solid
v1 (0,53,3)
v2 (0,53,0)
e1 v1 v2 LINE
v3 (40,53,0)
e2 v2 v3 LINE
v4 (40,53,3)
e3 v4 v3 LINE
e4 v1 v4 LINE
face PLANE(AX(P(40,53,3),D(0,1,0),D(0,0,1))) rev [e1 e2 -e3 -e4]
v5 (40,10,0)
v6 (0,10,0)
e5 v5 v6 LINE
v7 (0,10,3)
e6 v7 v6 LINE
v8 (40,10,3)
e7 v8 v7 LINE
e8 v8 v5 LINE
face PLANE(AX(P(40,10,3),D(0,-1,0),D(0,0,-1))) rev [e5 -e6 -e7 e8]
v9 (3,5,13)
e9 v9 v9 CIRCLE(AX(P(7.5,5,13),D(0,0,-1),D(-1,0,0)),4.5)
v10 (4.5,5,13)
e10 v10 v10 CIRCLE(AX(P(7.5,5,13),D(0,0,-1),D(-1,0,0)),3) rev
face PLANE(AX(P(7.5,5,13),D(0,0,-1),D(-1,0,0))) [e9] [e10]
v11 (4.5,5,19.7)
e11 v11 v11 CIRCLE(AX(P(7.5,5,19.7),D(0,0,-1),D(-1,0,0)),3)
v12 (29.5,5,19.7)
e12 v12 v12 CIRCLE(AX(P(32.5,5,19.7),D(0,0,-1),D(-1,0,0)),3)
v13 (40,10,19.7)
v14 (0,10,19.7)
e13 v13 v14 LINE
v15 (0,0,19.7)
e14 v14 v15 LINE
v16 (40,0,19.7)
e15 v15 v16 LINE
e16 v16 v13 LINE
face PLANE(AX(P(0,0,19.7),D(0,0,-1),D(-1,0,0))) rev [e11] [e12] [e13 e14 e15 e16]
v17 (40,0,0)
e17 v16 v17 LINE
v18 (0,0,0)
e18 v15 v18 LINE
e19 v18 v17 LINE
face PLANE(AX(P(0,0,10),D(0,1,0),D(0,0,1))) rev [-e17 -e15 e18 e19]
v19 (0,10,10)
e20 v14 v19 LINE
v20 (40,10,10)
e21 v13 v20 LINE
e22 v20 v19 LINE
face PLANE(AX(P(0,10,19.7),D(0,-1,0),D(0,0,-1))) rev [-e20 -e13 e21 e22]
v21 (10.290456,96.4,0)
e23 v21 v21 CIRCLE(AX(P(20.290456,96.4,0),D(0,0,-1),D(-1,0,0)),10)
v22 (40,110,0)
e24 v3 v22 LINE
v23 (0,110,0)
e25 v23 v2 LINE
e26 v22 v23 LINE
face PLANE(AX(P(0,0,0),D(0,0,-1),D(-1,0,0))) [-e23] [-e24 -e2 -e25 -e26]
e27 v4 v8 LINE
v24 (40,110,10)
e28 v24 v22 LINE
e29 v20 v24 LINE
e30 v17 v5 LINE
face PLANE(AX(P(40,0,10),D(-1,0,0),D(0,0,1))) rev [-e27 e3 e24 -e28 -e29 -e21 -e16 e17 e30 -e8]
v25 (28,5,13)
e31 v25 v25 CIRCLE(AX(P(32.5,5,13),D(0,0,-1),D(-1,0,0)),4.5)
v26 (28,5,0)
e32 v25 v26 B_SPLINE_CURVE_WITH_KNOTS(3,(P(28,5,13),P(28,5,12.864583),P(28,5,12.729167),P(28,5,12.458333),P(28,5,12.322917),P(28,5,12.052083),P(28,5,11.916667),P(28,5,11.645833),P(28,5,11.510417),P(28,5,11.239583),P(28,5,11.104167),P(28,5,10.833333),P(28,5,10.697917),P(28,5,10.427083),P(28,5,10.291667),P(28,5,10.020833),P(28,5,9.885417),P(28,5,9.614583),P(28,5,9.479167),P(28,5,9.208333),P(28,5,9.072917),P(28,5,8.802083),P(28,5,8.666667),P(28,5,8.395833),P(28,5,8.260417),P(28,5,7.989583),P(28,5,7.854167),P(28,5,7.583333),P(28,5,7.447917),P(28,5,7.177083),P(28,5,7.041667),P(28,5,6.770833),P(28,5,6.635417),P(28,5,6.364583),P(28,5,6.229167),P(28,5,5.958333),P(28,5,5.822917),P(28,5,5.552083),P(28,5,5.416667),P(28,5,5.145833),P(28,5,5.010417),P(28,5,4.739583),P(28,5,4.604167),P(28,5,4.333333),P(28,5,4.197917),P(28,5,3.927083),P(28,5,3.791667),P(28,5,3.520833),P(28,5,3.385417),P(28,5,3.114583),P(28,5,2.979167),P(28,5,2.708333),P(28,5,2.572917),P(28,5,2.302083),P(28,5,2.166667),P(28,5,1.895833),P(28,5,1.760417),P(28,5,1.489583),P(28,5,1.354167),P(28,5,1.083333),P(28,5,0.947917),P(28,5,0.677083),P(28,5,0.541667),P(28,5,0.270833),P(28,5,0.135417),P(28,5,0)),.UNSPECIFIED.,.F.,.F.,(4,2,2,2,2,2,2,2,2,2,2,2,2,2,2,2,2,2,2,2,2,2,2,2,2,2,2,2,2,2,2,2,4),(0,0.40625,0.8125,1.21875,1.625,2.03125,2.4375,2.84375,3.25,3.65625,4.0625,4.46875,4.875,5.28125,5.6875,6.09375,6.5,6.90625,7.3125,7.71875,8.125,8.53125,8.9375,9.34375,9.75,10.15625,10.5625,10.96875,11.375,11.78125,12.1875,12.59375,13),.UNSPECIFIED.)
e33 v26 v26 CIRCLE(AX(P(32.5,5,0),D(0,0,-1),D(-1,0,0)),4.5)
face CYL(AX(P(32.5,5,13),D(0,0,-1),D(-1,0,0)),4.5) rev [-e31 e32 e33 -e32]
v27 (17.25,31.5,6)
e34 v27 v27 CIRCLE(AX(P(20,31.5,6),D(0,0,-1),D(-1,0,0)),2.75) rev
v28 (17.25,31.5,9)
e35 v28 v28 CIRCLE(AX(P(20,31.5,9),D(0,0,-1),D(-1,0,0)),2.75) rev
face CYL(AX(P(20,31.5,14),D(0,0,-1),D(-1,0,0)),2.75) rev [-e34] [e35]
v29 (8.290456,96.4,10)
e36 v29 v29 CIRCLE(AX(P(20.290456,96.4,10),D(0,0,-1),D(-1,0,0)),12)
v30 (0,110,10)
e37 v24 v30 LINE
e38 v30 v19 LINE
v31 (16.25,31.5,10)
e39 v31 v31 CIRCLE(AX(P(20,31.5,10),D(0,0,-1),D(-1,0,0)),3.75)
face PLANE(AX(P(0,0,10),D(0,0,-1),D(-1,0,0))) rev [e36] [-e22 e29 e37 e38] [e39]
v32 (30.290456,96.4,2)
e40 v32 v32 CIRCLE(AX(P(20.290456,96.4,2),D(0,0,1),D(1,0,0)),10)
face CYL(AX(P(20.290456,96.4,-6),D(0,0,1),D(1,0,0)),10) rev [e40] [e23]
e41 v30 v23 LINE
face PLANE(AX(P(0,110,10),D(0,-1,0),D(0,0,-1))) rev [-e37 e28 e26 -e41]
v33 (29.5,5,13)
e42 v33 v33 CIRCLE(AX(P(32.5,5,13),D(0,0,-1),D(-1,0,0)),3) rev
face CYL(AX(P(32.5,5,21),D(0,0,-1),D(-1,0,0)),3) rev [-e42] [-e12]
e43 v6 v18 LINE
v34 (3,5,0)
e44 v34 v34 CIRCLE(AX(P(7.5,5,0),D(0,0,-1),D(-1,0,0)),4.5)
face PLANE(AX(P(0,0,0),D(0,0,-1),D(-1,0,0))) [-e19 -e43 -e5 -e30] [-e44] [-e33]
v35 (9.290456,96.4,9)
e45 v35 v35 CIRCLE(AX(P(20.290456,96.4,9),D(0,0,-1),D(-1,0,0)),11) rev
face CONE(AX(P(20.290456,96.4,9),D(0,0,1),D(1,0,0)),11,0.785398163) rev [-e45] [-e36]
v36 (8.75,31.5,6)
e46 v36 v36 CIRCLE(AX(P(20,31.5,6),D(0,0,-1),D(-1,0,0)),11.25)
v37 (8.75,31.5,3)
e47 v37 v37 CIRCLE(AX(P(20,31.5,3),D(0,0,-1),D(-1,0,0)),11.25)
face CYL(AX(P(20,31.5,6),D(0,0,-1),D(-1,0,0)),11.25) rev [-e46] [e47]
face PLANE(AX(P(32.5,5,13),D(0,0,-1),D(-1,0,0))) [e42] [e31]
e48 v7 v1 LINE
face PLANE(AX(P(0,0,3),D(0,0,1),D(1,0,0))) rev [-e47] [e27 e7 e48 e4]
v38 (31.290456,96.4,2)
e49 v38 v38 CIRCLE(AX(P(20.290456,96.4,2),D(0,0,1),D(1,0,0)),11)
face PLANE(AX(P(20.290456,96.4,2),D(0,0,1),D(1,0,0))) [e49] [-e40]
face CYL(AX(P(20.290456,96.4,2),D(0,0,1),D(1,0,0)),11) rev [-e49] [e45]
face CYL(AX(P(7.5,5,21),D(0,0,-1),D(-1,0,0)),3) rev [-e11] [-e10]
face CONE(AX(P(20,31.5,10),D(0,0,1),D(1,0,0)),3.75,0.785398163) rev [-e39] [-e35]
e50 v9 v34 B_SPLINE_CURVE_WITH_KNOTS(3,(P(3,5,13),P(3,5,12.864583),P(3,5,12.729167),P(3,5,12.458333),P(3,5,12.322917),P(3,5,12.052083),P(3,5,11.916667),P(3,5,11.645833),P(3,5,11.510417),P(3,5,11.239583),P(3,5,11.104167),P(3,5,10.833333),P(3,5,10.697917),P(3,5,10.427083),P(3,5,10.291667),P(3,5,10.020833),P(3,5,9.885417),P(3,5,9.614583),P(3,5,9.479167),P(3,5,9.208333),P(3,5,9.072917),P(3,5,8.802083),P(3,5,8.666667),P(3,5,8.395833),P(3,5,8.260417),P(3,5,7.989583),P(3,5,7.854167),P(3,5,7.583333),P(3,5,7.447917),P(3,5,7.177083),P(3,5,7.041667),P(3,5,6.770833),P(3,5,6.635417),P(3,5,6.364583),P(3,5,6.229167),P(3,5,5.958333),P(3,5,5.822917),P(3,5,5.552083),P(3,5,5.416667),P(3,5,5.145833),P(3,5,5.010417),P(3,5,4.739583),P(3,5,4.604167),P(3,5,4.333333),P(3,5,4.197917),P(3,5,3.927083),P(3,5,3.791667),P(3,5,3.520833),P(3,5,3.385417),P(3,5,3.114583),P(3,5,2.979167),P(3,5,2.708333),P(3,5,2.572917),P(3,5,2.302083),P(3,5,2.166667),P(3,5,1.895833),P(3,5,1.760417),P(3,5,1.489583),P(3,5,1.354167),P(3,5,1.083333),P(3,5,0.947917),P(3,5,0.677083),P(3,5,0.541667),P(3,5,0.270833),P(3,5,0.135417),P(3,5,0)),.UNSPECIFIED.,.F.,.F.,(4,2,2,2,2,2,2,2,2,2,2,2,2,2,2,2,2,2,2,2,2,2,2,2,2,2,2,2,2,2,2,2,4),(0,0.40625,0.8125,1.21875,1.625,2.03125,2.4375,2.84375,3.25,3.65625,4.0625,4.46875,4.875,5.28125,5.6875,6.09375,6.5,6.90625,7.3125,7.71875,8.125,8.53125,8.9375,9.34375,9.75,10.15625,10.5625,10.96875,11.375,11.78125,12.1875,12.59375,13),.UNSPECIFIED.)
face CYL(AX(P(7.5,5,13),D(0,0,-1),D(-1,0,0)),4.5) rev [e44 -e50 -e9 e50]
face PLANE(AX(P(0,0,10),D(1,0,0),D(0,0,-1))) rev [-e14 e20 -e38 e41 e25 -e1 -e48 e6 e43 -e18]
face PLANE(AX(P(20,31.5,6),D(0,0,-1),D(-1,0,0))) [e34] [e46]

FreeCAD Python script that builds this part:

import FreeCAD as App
import Part
import Sketcher
from FreeCAD import Vector
Q = App.Units.Quantity


def edges_at(feature, points):
    """Names of the edges that pass closest to the given points."""
    edges = feature.Shape.Edges
    near = lambda p: min(range(len(edges)), key=lambda i: edges[i].distToShape(Part.Vertex(*p))[0])
    return sorted({f"Edge{near(p) + 1}" for p in points})

doc = App.newDocument("Part")
body = doc.addObject("PartDesign::Body", "Body")

# Sketch on XY plane
sketch1 = body.newObject("Sketcher::SketchObject", "Sketch")
sketch1.AttachmentSupport = (doc.getObject("XY_Plane"), [""])
sketch1.MapMode = "FlatFace"
sketch1.addGeometry([
    Part.LineSegment(Vector(0, 110, 0), Vector(0, 0, 0)),
    Part.LineSegment(Vector(0, 0, 0), Vector(40, 0, 0)),
    Part.LineSegment(Vector(40, 0, 0), Vector(40, 110, 0)),
    Part.LineSegment(Vector(40, 110, 0), Vector(0, 110, 0)),
], False)
sketch1.addConstraint([
    Sketcher.Constraint("Coincident", 0, 2, 1, 1),
    Sketcher.Constraint("Coincident", 1, 2, 2, 1),
    Sketcher.Constraint("Coincident", 2, 2, 3, 1),
    Sketcher.Constraint("Coincident", 3, 2, 0, 1),
    Sketcher.Constraint("Vertical", 0),
    Sketcher.Constraint("Horizontal", 1),
    Sketcher.Constraint("Vertical", 2),
    Sketcher.Constraint("Horizontal", 3),
    Sketcher.Constraint("Coincident", 0, 2, -1, 1),
    Sketcher.Constraint("DistanceX", 1, 1, 1, 2, Q("40 mm")),
    Sketcher.Constraint("DistanceY", 0, 2, 0, 1, Q("110 mm")),
])
pad1 = body.newObject("PartDesign::Pad", "Pad")
pad1.Profile = sketch1
pad1.Length = 10

# Sketch on XY plane
sketch2 = body.newObject("Sketcher::SketchObject", "Sketch001")
sketch2.AttachmentSupport = (doc.getObject("XY_Plane"), [""])
sketch2.MapMode = "FlatFace"
sketch2.addGeometry([
    Part.LineSegment(Vector(40, 53, 0), Vector(40, 10, 0)),
    Part.LineSegment(Vector(40, 10, 0), Vector(0, 10, 0)),
    Part.LineSegment(Vector(0, 10, 0), Vector(0, 53, 0)),
    Part.LineSegment(Vector(0, 53, 0), Vector(40, 53, 0)),
], False)
sketch2.addConstraint([
    Sketcher.Constraint("Coincident", 0, 2, 1, 1),
    Sketcher.Constraint("Coincident", 1, 2, 2, 1),
    Sketcher.Constraint("Coincident", 2, 2, 3, 1),
    Sketcher.Constraint("Coincident", 3, 2, 0, 1),
    Sketcher.Constraint("Vertical", 0),
    Sketcher.Constraint("Horizontal", 1),
    Sketcher.Constraint("Vertical", 2),
    Sketcher.Constraint("Horizontal", 3),
    Sketcher.Constraint("PointOnObject", 1, 2, -2),
    Sketcher.Constraint("DistanceX", 1, 2, 1, 1, Q("40 mm")),
    Sketcher.Constraint("DistanceY", 0, 2, 0, 1, Q("43 mm")),
    Sketcher.Constraint("DistanceY", -1, 1, 0, 2, Q("10 mm")),
])
pocket1 = body.newObject("PartDesign::Pocket", "Pocket")
pocket1.Profile = sketch2
pocket1.Length = 3
pocket1.Reversed = True

# Sketch on XY plane
sketch3 = body.newObject("Sketcher::SketchObject", "Sketch002")
sketch3.AttachmentSupport = (doc.getObject("XY_Plane"), [""])
sketch3.MapMode = "FlatFace"
sketch3.AttachmentOffset = App.Placement(Vector(0, 0, 3), App.Rotation())
sketch3.addGeometry(Part.Circle(Vector(20, 31.5, 0), Vector(0, 0, 1), 2.8), False)
sketch3.addConstraint([
    Sketcher.Constraint("Diameter", 0, Q("5.5 mm")),
    Sketcher.Constraint("DistanceX", -1, 1, 0, 3, Q("20 mm")),
    Sketcher.Constraint("DistanceY", -1, 1, 0, 3, Q("31.5 mm")),
])
pocket2 = body.newObject("PartDesign::Pocket", "Pocket001")
pocket2.Profile = sketch3
pocket2.Length = 11
pocket2.Reversed = True

# Sketch on XY plane
sketch4 = body.newObject("Sketcher::SketchObject", "Sketch003")
sketch4.AttachmentSupport = (doc.getObject("XY_Plane"), [""])
sketch4.MapMode = "FlatFace"
sketch4.AttachmentOffset = App.Placement(Vector(0, 0, 10), App.Rotation())
sketch4.addGeometry(Part.Circle(Vector(20, 96, 0), Vector(0, 0, 1), 11), False)
sketch4.addConstraint([
    Sketcher.Constraint("Diameter", 0, Q("22 mm")),
    Sketcher.Constraint("DistanceY", -1, 1, 0, 3, Q("96.4 mm")),
    Sketcher.Constraint("DistanceX", -1, 1, 0, 3, Q("20.290456 mm")),
])
pocket3 = body.newObject("PartDesign::Pocket", "Pocket002")
pocket3.Profile = sketch4
pocket3.Length = 8

# Sketch on XY plane
sketch5 = body.newObject("Sketcher::SketchObject", "Sketch004")
sketch5.AttachmentSupport = (doc.getObject("XY_Plane"), [""])
sketch5.MapMode = "FlatFace"
sketch5.AttachmentOffset = App.Placement(Vector(0, 0, 2), App.Rotation())
sketch5.addGeometry(Part.Circle(Vector(20, 96, 0), Vector(0, 0, 1), 10), False)
sketch5.addConstraint([
    Sketcher.Constraint("Diameter", 0, Q("20 mm")),
    Sketcher.Constraint("DistanceY", -1, 1, 0, 3, Q("96.4 mm")),
    Sketcher.Constraint("DistanceX", -1, 1, 0, 3, Q("20.290456 mm")),
])
pocket4 = body.newObject("PartDesign::Pocket", "Pocket003")
pocket4.Profile = sketch5
pocket4.Length = 8
doc.recompute()

chamfer = body.newObject("PartDesign::Chamfer", "Chamfer")
chamfer.Base = (pocket4, edges_at(pocket4, [(22.75, 31.5, 10), (9.29, 96.4, 10)]))
chamfer.Size = 1

# Sketch on XY plane
sketch6 = body.newObject("Sketcher::SketchObject", "Sketch005")
sketch6.AttachmentSupport = (doc.getObject("XY_Plane"), [""])
sketch6.MapMode = "FlatFace"
sketch6.AttachmentOffset = App.Placement(Vector(0, 0, 10), App.Rotation())
sketch6.addGeometry([
    Part.LineSegment(Vector(0, 10, 0), Vector(0, 0, 0)),
    Part.LineSegment(Vector(0, 0, 0), Vector(40, 0, 0)),
    Part.LineSegment(Vector(40, 0, 0), Vector(40, 10, 0)),
    Part.LineSegment(Vector(40, 10, 0), Vector(0, 10, 0)),
], False)
sketch6.addConstraint([
    Sketcher.Constraint("Coincident", 0, 2, 1, 1),
    Sketcher.Constraint("Coincident", 1, 2, 2, 1),
    Sketcher.Constraint("Coincident", 2, 2, 3, 1),
    Sketcher.Constraint("Coincident", 3, 2, 0, 1),
    Sketcher.Constraint("Vertical", 0),
    Sketcher.Constraint("Horizontal", 1),
    Sketcher.Constraint("Vertical", 2),
    Sketcher.Constraint("Horizontal", 3),
    Sketcher.Constraint("Coincident", 0, 2, -1, 1),
    Sketcher.Constraint("DistanceX", 1, 1, 1, 2, Q("40 mm")),
    Sketcher.Constraint("DistanceY", 0, 2, 0, 1, Q("10 mm")),
])
pad2 = body.newObject("PartDesign::Pad", "Pad001")
pad2.Profile = sketch6
pad2.Length = 9.7

# Sketch on XY plane
sketch7 = body.newObject("Sketcher::SketchObject", "Sketch006")
sketch7.AttachmentSupport = (doc.getObject("XY_Plane"), [""])
sketch7.MapMode = "FlatFace"
sketch7.addGeometry([
    Part.Circle(Vector(32.5, 5, 0), Vector(0, 0, 1), 3),
    Part.Circle(Vector(7.5, 5, 0), Vector(0, 0, 1), 3),
], False)
sketch7.addConstraint([
    Sketcher.Constraint("Equal", 0, 1),
    Sketcher.Constraint("Horizontal", 0, 3, 1, 3),
    Sketcher.Constraint("Diameter", 0, Q("6 mm")),
    Sketcher.Constraint("DistanceY", -1, 1, 0, 3, Q("5 mm")),
    Sketcher.Constraint("DistanceX", 1, 3, 0, 3, Q("25 mm")),
    Sketcher.Constraint("DistanceX", -1, 1, 0, 3, Q("32.5 mm")),
])
pocket5 = body.newObject("PartDesign::Pocket", "Pocket004")
pocket5.Profile = sketch7
pocket5.Length = 21
pocket5.Reversed = True

# Sketch on XY plane
sketch8 = body.newObject("Sketcher::SketchObject", "Sketch007")
sketch8.AttachmentSupport = (doc.getObject("XY_Plane"), [""])
sketch8.MapMode = "FlatFace"
sketch8.addGeometry([
    Part.Circle(Vector(32.5, 5, 0), Vector(0, 0, 1), 4.5),
    Part.Circle(Vector(7.5, 5, 0), Vector(0, 0, 1), 4.5),
], False)
sketch8.addConstraint([
    Sketcher.Constraint("Equal", 0, 1),
    Sketcher.Constraint("Horizontal", 0, 3, 1, 3),
    Sketcher.Constraint("Diameter", 0, Q("9 mm")),
    Sketcher.Constraint("DistanceY", -1, 1, 0, 3, Q("5 mm")),
    Sketcher.Constraint("DistanceX", 1, 3, 0, 3, Q("25 mm")),
    Sketcher.Constraint("DistanceX", -1, 1, 0, 3, Q("32.5 mm")),
])
pocket6 = body.newObject("PartDesign::Pocket", "Pocket005")
pocket6.Profile = sketch8
pocket6.Length = 13
pocket6.Reversed = True

# Sketch on XY plane
sketch9 = body.newObject("Sketcher::SketchObject", "Sketch008")
sketch9.AttachmentSupport = (doc.getObject("XY_Plane"), [""])
sketch9.MapMode = "FlatFace"
sketch9.AttachmentOffset = App.Placement(Vector(0, 0, 3), App.Rotation())
sketch9.addGeometry(Part.Circle(Vector(20, 32, 0), Vector(0, 0, 1), 11), False)
sketch9.addConstraint([
    Sketcher.Constraint("Diameter", 0, Q("22.5 mm")),
    Sketcher.Constraint("DistanceX", -1, 1, 0, 3, Q("20 mm")),
    Sketcher.Constraint("DistanceY", -1, 1, 0, 3, Q("31.5 mm")),
])
pocket7 = body.newObject("PartDesign::Pocket", "Pocket006")
pocket7.Profile = sketch9
pocket7.Length = 3
pocket7.Reversed = True

doc.recompute()
